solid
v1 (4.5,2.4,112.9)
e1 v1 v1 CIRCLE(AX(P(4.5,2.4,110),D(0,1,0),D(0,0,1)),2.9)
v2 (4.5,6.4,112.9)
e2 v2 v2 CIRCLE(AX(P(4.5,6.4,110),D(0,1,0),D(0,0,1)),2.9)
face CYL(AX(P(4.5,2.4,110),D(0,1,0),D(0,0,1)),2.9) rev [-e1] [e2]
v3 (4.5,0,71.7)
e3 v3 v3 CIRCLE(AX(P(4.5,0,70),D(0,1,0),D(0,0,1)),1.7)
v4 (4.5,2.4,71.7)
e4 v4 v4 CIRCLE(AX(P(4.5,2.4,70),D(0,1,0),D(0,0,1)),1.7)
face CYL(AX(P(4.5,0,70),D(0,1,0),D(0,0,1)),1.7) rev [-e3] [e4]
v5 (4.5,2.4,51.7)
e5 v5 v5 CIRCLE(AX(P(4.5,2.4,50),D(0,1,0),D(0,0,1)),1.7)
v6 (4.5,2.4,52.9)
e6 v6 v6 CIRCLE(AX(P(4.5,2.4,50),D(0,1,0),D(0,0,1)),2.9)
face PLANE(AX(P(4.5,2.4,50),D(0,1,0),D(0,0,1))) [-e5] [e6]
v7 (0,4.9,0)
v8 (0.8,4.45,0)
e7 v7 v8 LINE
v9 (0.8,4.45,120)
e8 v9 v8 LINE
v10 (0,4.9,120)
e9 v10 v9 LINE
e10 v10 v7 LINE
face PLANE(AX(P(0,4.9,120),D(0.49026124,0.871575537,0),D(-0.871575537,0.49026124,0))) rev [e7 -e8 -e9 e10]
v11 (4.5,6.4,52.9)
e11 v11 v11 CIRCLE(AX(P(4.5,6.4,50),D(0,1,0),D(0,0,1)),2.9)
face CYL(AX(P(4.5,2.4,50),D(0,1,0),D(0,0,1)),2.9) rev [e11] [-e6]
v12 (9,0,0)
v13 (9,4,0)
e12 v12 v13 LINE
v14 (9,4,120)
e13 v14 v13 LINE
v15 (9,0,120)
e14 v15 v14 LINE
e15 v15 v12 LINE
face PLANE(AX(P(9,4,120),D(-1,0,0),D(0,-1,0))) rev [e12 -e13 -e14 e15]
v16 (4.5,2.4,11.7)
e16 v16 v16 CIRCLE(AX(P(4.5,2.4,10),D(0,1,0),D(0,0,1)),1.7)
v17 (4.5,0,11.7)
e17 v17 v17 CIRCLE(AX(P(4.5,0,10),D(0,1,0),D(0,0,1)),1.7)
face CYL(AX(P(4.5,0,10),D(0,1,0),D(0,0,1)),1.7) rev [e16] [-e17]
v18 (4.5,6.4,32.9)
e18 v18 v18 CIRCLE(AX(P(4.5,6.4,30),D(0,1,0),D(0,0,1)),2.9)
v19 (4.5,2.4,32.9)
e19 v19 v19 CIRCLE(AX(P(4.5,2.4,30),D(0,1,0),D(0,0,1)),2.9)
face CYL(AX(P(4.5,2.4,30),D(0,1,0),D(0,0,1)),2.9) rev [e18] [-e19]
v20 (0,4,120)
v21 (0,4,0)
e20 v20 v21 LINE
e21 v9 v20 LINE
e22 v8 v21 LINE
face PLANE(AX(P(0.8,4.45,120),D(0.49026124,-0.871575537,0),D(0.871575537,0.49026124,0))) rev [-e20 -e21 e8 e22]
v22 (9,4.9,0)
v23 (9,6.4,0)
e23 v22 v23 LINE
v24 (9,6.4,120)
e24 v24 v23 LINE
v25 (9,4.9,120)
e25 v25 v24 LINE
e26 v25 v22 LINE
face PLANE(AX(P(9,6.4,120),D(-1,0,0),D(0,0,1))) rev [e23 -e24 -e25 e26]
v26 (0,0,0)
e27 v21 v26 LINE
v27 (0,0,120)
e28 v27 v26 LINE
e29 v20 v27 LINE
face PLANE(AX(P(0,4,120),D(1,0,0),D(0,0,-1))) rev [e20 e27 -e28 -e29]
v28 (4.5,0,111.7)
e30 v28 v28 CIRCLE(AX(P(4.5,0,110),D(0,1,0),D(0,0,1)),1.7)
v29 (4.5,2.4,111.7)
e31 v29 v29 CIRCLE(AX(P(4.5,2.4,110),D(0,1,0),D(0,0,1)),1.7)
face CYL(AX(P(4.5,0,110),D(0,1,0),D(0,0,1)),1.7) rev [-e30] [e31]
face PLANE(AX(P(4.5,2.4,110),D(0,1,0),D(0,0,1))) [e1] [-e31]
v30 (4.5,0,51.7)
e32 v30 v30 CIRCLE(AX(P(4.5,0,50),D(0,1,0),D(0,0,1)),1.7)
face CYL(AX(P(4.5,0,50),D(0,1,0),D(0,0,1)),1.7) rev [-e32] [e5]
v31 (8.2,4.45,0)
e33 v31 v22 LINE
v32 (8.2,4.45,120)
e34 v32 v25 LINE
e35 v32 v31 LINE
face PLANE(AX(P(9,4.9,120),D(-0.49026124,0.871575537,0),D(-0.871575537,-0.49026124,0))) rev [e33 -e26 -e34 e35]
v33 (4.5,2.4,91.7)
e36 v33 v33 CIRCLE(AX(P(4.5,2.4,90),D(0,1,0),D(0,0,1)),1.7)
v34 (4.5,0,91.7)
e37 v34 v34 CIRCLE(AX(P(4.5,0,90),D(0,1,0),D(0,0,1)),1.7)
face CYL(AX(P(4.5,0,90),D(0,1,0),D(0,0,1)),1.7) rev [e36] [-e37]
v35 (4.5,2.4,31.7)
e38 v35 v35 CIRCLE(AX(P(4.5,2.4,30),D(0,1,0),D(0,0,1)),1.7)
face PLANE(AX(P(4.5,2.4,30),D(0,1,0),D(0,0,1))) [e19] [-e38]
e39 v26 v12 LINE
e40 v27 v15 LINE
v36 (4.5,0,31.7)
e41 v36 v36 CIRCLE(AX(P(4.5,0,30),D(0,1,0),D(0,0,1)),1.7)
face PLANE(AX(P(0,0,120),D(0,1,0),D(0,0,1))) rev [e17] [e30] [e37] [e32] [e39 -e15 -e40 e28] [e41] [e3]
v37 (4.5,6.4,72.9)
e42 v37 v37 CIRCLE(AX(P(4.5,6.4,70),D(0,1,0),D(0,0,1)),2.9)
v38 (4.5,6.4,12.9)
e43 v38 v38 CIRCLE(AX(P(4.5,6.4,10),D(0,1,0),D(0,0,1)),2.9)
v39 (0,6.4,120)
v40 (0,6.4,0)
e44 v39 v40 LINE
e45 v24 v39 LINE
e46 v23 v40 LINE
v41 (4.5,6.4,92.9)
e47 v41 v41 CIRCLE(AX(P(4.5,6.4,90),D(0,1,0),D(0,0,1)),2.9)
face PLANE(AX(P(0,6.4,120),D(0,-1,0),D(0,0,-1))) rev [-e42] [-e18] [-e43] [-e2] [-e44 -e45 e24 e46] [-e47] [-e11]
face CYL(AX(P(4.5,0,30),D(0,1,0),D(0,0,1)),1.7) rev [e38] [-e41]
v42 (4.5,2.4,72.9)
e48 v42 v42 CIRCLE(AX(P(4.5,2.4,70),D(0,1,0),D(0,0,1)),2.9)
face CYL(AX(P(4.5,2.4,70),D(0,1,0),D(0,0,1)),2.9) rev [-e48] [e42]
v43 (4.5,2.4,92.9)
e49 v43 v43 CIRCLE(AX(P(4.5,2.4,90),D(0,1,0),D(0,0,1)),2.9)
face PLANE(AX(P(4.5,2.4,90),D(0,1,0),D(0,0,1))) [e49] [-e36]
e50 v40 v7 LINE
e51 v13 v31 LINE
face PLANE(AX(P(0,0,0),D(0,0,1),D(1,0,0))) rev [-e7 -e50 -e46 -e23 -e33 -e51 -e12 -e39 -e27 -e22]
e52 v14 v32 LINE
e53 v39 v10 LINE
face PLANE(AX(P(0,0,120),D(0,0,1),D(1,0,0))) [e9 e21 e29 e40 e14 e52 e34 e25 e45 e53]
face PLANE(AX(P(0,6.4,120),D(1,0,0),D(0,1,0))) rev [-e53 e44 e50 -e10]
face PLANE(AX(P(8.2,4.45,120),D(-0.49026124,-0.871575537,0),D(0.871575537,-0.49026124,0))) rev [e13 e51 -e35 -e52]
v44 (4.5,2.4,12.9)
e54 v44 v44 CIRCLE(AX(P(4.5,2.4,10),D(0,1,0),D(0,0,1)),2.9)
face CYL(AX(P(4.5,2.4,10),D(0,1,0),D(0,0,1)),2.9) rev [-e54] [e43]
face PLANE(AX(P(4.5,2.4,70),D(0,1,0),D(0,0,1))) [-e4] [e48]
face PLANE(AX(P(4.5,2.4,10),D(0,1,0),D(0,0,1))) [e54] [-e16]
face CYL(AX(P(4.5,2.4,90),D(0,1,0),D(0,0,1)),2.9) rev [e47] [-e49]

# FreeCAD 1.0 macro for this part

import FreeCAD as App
import Part
import Sketcher
Q = App.Units.Quantity


def add_polygon(sketch, points):
    """Adds a closed chain of lines whose ends are joined by coincident constraints."""
    first, n = sketch.GeometryCount, len(points)
    for a, b in zip(points, points[1:] + points[:1]):
        sketch.addGeometry(Part.LineSegment(App.Vector(*a, 0), App.Vector(*b, 0)), False)
    for i in range(n):
        sketch.addConstraint(Sketcher.Constraint("Coincident", first + i, 2, first + (i + 1) % n, 1))

doc = App.newDocument("Part")
body = doc.addObject("PartDesign::Body", "Body")

# Sketch on XY plane
sketch1 = body.newObject("Sketcher::SketchObject", "Sketch")
sketch1.AttachmentSupport = (doc.getObject("XY_Plane"), [""])
sketch1.MapMode = "FlatFace"
add_polygon(sketch1, [(9, 4.9), (9, 6.4), (0, 6.4), (0, 4.9), (0.8, 4.5), (0, 4), (0, 0), (9, 0), (9, 4), (8.2, 4.5)])  # lines 0-9
sketch1.addConstraint([
    Sketcher.Constraint("Vertical", 0),
    Sketcher.Constraint("Horizontal", 1),
    Sketcher.Constraint("Vertical", 2),
    Sketcher.Constraint("Vertical", 5),
    Sketcher.Constraint("Horizontal", 6),
    Sketcher.Constraint("Vertical", 7),
    Sketcher.Constraint("Coincident", 5, 2, -1, 1),
    Sketcher.Constraint("PointOnObject", 1, 2, -2),
    Sketcher.Constraint("Parallel", 3, 8),
    Sketcher.Constraint("Parallel", 4, 9),
    Sketcher.Constraint("Horizontal", 4, 2, 7, 2),
    Sketcher.Constraint("Horizontal", 3, 2, 8, 2),
    Sketcher.Constraint("Horizontal", 2, 2, 9, 2),
    Sketcher.Constraint("Vertical", 0, 2, 6, 2),
    Sketcher.Constraint("DistanceX", 1, 2, 1, 1, Q("9 mm")),
    Sketcher.Constraint("DistanceY", 5, 2, 5, 1, Q("4 mm")),
    Sketcher.Constraint("DistanceY", 0, 1, 0, 2, Q("1.5 mm")),
    Sketcher.Constraint("DistanceY", -1, 1, 0, 2, Q("6.4 mm")),
    Sketcher.Constraint("DistanceX", -1, 1, 3, 2, Q("0.8 mm")),
])
pad1 = body.newObject("PartDesign::Pad", "Pad")
pad1.Profile = sketch1
pad1.Length = 120

# Sketch on XZ plane
sketch2 = body.newObject("Sketcher::SketchObject", "Sketch001")
sketch2.AttachmentSupport = (doc.getObject("XZ_Plane"), [""])
sketch2.MapMode = "FlatFace"
sketch2.AttachmentOffset = App.Placement(App.Vector(0, 0, -6.4), App.Rotation())
sketch2.addGeometry([
    Part.Circle(App.Vector(4.5, 110, 0), App.Vector(0, 0, 1), 2.9),  # 0
    Part.Circle(App.Vector(4.5, 90, 0), App.Vector(0, 0, 1), 2.9),  # 1
    Part.Circle(App.Vector(4.5, 70, 0), App.Vector(0, 0, 1), 2.9),  # 2
    Part.Circle(App.Vector(4.5, 50, 0), App.Vector(0, 0, 1), 2.9),  # 3
    Part.Circle(App.Vector(4.5, 30, 0), App.Vector(0, 0, 1), 2.9),  # 4
    Part.Circle(App.Vector(4.5, 10, 0), App.Vector(0, 0, 1), 2.9),  # 5
    Part.Circle(App.Vector(4.5, -10, 0), App.Vector(0, 0, 1), 2.9),  # 6
], False)
sketch2.addConstraint([
    Sketcher.Constraint("Equal", 0, 1),
    Sketcher.Constraint("Equal", 1, 2),
    Sketcher.Constraint("Equal", 2, 3),
    Sketcher.Constraint("Equal", 3, 4),
    Sketcher.Constraint("Equal", 4, 5),
    Sketcher.Constraint("Equal", 5, 6),
    Sketcher.Constraint("Symmetric", 5, 3, 6, 3, -1),
    Sketcher.Constraint("Vertical", 0, 3, 1, 3),
    Sketcher.Constraint("Vertical", 1, 3, 2, 3),
    Sketcher.Constraint("Vertical", 2, 3, 3, 3),
    Sketcher.Constraint("Vertical", 3, 3, 4, 3),
    Sketcher.Constraint("Vertical", 4, 3, 5, 3),
    Sketcher.Constraint("Diameter", 0, Q("5.8 mm")),
    Sketcher.Constraint("DistanceY", -1, 1, 0, 3, Q("110 mm")),
    Sketcher.Constraint("DistanceY", -1, 1, 1, 3, Q("90 mm")),
    Sketcher.Constraint("DistanceY", -1, 1, 2, 3, Q("70 mm")),
    Sketcher.Constraint("DistanceY", -1, 1, 3, 3, Q("50 mm")),
    Sketcher.Constraint("DistanceY", -1, 1, 4, 3, Q("30 mm")),
    Sketcher.Constraint("DistanceY", -1, 1, 5, 3, Q("10 mm")),
    Sketcher.Constraint("DistanceX", -1, 1, 0, 3, Q("4.5 mm")),
])
pocket1 = body.newObject("PartDesign::Pocket", "Pocket")
pocket1.Profile = sketch2
pocket1.Length = 4
pocket1.Reversed = True

# Sketch on XZ plane
sketch3 = body.newObject("Sketcher::SketchObject", "Sketch002")
sketch3.AttachmentSupport = (doc.getObject("XZ_Plane"), [""])
sketch3.MapMode = "FlatFace"
sketch3.AttachmentOffset = App.Placement(App.Vector(0, 0, -2.4), App.Rotation())
sketch3.addGeometry([
    Part.Circle(App.Vector(4.5, 110, 0), App.Vector(0, 0, 1), 1.7),  # 0
    Part.Circle(App.Vector(4.5, 90, 0), App.Vector(0, 0, 1), 1.7),  # 1
    Part.Circle(App.Vector(4.5, 70, 0), App.Vector(0, 0, 1), 1.7),  # 2
    Part.Circle(App.Vector(4.5, 50, 0), App.Vector(0, 0, 1), 1.7),  # 3
    Part.Circle(App.Vector(4.5, 30, 0), App.Vector(0, 0, 1), 1.7),  # 4
    Part.Circle(App.Vector(4.5, 10, 0), App.Vector(0, 0, 1), 1.7),  # 5
    Part.Circle(App.Vector(4.5, -10, 0), App.Vector(0, 0, 1), 1.7),  # 6
], False)
sketch3.addConstraint([
    Sketcher.Constraint("Equal", 0, 1),
    Sketcher.Constraint("Equal", 1, 2),
    Sketcher.Constraint("Equal", 2, 3),
    Sketcher.Constraint("Equal", 3, 4),
    Sketcher.Constraint("Equal", 4, 5),
    Sketcher.Constraint("Equal", 5, 6),
    Sketcher.Constraint("Symmetric", 5, 3, 6, 3, -1),
    Sketcher.Constraint("Vertical", 0, 3, 1, 3),
    Sketcher.Constraint("Vertical", 1, 3, 2, 3),
    Sketcher.Constraint("Vertical", 2, 3, 3, 3),
    Sketcher.Constraint("Vertical", 3, 3, 4, 3),
    Sketcher.Constraint("Vertical", 4, 3, 5, 3),
    Sketcher.Constraint("Diameter", 0, Q("3.4 mm")),
    Sketcher.Constraint("DistanceY", -1, 1, 0, 3, Q("110 mm")),
    Sketcher.Constraint("DistanceY", -1, 1, 1, 3, Q("90 mm")),
    Sketcher.Constraint("DistanceY", -1, 1, 2, 3, Q("70 mm")),
    Sketcher.Constraint("DistanceY", -1, 1, 3, 3, Q("50 mm")),
    Sketcher.Constraint("DistanceY", -1, 1, 4, 3, Q("30 mm")),
    Sketcher.Constraint("DistanceY", -1, 1, 5, 3, Q("10 mm")),
    Sketcher.Constraint("DistanceX", -1, 1, 0, 3, Q("4.5 mm")),
])
pocket2 = body.newObject("PartDesign::Pocket", "Pocket001")
pocket2.Profile = sketch3
pocket2.Type = "ThroughAll"
pocket2.Reversed = True

doc.recompute()
